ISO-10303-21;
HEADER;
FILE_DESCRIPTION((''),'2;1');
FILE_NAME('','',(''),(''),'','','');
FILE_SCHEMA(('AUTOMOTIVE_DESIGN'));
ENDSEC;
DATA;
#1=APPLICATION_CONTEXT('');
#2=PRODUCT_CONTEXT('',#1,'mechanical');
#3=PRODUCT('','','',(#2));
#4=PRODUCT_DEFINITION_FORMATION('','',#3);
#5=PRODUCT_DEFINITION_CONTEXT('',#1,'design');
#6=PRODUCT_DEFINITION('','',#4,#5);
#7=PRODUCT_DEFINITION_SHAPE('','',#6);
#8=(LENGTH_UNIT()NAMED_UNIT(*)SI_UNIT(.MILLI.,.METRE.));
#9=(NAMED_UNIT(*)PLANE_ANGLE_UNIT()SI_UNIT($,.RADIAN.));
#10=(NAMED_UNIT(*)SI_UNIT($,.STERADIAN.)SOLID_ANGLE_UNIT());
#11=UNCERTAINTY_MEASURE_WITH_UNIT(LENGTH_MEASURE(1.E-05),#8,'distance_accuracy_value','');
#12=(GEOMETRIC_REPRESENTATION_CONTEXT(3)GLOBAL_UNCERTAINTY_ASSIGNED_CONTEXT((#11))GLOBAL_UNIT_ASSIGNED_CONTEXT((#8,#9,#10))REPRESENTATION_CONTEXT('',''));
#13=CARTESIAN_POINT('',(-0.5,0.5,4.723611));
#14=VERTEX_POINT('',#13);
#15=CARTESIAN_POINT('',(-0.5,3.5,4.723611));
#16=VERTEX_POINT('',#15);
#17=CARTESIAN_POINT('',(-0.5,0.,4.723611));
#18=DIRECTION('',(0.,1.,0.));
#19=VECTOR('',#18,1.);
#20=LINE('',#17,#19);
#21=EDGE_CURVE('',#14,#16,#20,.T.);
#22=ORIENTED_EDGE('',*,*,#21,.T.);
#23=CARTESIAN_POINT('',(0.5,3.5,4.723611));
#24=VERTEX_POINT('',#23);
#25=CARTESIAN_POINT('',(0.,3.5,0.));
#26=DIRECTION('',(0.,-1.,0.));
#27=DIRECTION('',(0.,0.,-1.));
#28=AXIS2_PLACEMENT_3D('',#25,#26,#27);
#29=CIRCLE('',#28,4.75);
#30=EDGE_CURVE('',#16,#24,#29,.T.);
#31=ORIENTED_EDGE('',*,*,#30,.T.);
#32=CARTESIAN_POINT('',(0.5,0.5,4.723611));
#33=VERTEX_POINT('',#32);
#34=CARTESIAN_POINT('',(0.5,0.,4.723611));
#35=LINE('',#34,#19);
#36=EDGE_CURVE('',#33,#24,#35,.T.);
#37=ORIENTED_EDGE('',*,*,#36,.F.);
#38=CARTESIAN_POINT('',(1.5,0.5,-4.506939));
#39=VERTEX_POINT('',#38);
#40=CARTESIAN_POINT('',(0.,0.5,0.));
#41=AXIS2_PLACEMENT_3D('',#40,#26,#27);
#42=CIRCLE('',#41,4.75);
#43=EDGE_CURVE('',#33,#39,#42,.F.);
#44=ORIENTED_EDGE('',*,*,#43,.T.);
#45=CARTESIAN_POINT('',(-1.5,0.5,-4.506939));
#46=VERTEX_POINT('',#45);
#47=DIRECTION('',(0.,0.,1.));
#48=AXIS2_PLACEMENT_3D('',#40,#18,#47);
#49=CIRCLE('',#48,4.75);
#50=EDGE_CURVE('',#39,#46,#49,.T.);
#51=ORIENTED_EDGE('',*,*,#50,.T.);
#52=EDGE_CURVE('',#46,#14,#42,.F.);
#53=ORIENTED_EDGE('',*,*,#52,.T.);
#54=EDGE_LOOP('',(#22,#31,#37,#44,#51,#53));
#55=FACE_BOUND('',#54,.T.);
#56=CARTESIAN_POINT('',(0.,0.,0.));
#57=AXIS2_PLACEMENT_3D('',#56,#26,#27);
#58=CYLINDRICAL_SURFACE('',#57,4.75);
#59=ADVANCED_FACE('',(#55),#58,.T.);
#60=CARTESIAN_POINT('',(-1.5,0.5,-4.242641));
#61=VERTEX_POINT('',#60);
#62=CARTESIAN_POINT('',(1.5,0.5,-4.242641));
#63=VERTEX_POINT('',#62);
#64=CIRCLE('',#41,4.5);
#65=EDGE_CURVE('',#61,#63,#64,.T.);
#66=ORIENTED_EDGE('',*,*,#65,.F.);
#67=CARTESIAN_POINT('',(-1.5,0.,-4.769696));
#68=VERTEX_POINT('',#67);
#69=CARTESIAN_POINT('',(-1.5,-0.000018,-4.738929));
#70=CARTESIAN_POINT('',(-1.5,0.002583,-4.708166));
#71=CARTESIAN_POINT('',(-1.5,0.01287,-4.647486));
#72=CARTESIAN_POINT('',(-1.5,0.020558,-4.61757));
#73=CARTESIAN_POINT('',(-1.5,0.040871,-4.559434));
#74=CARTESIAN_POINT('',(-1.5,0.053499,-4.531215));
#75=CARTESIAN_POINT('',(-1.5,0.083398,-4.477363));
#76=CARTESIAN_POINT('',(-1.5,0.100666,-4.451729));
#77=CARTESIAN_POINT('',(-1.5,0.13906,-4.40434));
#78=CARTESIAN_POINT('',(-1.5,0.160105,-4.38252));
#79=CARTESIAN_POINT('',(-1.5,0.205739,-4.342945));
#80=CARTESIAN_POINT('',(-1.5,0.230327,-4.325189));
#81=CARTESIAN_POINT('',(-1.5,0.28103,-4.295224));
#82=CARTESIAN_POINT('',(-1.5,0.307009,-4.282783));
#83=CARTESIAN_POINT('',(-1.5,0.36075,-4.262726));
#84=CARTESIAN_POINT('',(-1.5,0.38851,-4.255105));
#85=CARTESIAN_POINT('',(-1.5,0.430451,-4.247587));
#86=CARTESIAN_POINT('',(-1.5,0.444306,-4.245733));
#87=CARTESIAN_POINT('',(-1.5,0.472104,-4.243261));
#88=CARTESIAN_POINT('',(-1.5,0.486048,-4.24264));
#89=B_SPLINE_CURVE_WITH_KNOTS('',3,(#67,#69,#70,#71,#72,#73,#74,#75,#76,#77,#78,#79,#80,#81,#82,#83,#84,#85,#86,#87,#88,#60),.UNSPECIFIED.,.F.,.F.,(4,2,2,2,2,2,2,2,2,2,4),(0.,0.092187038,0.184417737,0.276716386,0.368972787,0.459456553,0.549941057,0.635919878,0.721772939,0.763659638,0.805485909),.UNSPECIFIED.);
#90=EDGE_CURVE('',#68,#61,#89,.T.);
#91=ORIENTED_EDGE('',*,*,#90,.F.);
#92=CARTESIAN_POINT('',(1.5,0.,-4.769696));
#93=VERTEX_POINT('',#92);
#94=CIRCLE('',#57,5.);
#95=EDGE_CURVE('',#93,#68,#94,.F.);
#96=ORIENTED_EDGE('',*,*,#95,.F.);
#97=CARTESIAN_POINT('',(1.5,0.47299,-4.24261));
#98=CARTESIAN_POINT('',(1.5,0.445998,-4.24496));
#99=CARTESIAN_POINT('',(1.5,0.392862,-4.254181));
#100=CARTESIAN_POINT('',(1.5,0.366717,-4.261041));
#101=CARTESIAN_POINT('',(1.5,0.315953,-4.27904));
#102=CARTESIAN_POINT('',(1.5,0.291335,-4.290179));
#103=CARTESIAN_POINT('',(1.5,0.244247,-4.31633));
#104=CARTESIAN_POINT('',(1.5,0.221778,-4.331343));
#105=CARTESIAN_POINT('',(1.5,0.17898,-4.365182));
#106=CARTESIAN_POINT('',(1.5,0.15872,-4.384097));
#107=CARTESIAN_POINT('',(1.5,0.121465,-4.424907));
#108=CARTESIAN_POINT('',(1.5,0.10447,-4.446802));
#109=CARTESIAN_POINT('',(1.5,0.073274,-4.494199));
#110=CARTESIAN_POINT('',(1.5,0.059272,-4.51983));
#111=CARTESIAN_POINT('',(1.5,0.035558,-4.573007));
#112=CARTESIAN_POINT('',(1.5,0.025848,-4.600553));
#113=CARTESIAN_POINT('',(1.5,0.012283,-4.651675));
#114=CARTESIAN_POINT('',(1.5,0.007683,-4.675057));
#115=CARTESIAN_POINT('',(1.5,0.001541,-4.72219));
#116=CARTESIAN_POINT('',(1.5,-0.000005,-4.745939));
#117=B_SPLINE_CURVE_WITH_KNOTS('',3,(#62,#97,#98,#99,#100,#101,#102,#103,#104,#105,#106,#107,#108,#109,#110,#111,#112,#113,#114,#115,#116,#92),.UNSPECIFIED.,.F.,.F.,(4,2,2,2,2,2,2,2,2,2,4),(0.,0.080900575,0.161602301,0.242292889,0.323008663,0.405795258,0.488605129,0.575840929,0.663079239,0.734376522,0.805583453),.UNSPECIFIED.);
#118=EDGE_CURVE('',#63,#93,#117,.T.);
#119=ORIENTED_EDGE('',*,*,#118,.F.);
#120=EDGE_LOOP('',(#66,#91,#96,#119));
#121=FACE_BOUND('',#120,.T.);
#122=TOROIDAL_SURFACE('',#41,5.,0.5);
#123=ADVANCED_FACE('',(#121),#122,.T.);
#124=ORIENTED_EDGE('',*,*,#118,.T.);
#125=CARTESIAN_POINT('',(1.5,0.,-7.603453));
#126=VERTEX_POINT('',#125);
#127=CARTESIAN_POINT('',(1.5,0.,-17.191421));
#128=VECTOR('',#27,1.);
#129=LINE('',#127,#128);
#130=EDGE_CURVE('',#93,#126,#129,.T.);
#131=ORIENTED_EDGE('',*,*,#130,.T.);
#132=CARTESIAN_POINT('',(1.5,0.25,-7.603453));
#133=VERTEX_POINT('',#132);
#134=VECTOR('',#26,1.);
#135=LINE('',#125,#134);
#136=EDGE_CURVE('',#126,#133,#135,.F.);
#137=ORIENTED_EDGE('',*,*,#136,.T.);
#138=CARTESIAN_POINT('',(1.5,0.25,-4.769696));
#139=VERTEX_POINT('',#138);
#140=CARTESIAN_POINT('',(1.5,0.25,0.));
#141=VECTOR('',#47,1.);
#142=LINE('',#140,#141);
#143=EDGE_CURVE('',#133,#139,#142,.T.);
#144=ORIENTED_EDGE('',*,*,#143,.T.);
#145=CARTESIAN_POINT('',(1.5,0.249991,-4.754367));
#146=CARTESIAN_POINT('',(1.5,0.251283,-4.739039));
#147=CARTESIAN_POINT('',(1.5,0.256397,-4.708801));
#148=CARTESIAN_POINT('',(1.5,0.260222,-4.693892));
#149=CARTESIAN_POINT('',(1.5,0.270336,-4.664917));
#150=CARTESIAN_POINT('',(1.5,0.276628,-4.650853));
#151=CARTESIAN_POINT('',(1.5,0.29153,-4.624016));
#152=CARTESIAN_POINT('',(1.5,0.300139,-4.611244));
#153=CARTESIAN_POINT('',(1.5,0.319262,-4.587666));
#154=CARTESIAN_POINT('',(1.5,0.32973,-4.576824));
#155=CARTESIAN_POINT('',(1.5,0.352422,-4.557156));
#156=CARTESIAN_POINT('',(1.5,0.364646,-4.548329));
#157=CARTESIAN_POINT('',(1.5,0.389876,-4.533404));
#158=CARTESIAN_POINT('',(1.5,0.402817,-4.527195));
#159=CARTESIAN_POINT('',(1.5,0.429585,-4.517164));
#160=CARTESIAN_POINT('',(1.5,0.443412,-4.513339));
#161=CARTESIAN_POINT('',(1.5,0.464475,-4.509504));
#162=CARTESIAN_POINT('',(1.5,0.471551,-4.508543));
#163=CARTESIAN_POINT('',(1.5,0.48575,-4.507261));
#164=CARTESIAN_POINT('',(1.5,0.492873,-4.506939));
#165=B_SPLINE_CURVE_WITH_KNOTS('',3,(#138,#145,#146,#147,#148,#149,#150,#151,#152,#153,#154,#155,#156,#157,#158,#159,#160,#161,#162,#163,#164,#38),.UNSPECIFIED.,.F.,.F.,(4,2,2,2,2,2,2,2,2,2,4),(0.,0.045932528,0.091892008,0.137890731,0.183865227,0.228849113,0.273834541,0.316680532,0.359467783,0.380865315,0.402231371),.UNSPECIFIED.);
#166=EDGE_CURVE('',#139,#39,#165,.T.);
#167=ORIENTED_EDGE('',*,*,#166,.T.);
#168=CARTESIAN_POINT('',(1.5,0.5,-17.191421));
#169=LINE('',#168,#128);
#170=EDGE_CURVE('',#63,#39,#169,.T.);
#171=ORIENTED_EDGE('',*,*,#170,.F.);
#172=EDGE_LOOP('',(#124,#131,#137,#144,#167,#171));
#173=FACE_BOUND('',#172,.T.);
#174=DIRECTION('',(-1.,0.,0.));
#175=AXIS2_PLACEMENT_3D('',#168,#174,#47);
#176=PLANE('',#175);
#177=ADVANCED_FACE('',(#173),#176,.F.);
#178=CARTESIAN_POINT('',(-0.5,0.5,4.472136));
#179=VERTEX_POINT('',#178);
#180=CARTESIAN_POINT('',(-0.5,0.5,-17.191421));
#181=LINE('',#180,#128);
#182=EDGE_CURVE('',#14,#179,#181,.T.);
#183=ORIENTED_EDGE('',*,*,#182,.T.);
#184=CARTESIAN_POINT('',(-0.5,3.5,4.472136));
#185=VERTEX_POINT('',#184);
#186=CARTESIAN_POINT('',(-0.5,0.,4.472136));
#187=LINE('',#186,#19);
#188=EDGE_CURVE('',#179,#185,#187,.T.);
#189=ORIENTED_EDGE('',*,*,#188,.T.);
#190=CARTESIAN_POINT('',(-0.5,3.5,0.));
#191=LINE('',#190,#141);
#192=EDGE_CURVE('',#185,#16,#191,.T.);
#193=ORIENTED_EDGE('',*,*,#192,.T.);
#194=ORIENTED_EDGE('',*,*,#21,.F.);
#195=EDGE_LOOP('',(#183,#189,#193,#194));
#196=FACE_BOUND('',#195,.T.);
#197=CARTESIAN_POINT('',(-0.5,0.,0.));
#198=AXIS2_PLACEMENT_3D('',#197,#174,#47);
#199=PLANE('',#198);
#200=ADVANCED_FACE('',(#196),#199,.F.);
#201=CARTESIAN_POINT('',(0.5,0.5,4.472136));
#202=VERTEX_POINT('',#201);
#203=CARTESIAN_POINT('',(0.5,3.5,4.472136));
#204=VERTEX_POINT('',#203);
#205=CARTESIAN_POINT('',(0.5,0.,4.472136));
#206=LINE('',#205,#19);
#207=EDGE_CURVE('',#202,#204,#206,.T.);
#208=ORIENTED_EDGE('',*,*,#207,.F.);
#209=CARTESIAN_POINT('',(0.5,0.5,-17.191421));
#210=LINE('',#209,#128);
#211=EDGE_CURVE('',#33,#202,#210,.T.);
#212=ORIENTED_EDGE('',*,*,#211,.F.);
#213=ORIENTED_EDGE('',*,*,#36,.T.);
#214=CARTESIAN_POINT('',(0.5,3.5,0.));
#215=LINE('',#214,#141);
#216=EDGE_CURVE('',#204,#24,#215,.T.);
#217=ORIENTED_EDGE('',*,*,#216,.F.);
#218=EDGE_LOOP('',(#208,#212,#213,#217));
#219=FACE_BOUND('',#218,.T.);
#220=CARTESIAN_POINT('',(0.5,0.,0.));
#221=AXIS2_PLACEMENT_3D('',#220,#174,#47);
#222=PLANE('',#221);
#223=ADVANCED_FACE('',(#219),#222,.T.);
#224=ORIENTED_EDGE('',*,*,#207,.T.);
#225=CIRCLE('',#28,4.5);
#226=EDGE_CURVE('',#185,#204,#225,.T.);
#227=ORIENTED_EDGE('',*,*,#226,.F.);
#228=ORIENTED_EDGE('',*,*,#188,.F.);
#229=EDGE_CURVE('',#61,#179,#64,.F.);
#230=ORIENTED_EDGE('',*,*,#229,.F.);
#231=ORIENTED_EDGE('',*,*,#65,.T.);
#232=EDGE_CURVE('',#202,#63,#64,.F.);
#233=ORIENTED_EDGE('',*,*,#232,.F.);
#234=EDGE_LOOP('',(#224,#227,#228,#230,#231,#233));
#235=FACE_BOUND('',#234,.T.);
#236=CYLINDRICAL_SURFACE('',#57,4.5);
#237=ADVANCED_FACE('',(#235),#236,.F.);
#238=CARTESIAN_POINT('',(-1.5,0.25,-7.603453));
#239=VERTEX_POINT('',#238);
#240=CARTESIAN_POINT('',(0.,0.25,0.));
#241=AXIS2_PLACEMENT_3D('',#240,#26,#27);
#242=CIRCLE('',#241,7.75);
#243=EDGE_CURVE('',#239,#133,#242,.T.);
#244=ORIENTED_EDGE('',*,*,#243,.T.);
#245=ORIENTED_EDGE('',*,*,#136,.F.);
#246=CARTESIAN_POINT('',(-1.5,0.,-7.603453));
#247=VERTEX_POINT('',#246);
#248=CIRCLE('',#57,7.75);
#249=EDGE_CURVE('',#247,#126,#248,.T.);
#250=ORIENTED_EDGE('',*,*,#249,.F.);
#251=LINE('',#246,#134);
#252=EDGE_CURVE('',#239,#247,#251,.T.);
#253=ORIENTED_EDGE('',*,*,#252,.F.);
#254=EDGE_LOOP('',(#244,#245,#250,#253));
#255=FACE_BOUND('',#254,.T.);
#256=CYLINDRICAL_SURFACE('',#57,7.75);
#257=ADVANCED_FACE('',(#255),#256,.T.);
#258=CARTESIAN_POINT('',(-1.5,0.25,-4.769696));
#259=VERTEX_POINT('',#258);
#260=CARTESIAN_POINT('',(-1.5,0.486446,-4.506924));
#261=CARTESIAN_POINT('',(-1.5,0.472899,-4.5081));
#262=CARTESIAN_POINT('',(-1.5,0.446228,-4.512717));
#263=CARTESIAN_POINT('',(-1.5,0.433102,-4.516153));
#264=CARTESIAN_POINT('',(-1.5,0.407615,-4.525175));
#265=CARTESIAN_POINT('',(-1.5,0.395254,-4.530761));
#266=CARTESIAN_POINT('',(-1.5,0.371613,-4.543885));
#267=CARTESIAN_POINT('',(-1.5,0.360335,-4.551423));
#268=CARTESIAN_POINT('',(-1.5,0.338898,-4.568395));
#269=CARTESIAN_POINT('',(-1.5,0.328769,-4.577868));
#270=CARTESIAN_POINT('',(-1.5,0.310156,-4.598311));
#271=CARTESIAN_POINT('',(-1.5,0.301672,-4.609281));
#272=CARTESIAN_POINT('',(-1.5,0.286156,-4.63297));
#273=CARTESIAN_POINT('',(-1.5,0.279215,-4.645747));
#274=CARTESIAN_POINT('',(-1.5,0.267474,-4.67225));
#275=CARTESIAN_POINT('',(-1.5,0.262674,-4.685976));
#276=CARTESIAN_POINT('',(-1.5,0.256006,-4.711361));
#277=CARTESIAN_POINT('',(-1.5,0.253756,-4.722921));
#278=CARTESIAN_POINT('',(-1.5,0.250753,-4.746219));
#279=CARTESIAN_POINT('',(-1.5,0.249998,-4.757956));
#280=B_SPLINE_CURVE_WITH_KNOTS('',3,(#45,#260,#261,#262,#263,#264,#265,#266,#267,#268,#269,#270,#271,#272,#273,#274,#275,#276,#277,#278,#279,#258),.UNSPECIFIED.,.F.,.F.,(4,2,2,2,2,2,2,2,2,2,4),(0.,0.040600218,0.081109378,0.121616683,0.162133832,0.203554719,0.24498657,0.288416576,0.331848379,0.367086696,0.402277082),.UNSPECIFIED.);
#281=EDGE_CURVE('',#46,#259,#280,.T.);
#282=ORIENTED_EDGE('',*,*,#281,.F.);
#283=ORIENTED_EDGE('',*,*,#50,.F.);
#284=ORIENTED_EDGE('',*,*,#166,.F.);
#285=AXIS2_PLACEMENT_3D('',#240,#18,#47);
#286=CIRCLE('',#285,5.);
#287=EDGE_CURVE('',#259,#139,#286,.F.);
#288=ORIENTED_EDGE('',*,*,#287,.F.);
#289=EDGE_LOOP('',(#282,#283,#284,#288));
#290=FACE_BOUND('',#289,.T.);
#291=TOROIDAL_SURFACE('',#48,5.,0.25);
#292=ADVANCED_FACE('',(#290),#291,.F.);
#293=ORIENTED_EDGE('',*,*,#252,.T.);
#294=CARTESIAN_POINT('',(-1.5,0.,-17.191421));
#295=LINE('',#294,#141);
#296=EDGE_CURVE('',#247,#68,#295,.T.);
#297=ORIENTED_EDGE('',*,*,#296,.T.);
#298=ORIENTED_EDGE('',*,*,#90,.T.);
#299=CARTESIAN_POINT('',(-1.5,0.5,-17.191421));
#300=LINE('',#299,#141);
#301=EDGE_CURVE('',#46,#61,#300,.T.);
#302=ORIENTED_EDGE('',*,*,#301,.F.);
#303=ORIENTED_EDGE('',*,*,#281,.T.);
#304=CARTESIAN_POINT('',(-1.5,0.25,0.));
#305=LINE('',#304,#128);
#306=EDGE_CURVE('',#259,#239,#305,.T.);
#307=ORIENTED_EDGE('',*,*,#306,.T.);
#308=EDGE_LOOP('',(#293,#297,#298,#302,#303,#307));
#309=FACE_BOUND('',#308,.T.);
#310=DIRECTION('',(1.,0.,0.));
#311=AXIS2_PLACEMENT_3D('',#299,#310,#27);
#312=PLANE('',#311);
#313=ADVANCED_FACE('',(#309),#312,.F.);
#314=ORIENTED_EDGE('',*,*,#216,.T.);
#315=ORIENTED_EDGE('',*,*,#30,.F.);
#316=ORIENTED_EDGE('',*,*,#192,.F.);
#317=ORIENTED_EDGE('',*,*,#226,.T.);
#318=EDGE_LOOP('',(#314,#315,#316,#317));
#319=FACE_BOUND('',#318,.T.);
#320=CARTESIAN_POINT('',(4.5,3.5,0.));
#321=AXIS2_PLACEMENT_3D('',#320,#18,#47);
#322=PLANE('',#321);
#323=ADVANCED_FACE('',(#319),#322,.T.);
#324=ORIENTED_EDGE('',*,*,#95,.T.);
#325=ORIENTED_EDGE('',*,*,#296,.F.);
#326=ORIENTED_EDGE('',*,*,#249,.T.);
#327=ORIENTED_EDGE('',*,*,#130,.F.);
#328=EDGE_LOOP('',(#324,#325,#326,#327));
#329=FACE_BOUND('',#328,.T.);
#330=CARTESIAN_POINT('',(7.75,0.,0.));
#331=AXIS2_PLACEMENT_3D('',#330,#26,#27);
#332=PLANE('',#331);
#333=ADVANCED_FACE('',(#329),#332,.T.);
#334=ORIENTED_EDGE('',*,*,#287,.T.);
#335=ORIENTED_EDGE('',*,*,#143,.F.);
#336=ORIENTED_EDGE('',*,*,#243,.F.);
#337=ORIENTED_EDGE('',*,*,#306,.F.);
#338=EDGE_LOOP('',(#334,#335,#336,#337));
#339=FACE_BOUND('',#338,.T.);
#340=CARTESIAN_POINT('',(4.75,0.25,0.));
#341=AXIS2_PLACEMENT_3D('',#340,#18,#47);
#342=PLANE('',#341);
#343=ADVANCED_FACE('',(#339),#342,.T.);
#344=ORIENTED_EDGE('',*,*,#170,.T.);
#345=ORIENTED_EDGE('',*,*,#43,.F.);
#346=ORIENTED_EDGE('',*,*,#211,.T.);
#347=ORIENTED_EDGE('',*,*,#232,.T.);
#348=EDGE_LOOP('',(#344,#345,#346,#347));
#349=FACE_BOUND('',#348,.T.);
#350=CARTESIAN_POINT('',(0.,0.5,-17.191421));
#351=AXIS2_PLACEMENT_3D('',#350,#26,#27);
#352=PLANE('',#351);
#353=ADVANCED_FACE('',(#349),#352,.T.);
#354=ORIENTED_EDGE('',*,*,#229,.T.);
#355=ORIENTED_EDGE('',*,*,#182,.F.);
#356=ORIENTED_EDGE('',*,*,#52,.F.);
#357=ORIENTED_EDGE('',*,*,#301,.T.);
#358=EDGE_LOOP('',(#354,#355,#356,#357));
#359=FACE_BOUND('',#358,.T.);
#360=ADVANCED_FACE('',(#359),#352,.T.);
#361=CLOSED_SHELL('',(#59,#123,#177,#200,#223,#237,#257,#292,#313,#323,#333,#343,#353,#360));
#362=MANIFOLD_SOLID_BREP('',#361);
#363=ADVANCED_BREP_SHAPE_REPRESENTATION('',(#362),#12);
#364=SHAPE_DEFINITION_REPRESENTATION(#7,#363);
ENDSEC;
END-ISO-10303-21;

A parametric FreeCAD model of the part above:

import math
import FreeCAD as App
import Part
import Sketcher
from FreeCAD import Vector
Q = App.Units.Quantity


def edges_at(feature, points):
    """Names of the edges that pass closest to the given points."""
    edges = feature.Shape.Edges
    near = lambda p: min(range(len(edges)), key=lambda i: edges[i].distToShape(Part.Vertex(*p))[0])
    return sorted({f"Edge{near(p) + 1}" for p in points})

doc = App.newDocument("Part")
body = doc.addObject("PartDesign::Body", "Body")

# Sketch on XY plane
sketch1 = body.newObject("Sketcher::SketchObject", "Sketch")
sketch1.AttachmentSupport = (doc.getObject("XY_Plane"), [""])
sketch1.MapMode = "FlatFace"
sketch1.addGeometry(Part.LineSegment(Vector(4.5, 3.5, 0), Vector(4.5, 0, 0)), False)
sketch1.addGeometry(Part.LineSegment(Vector(4.5, 0, 0), Vector(7.75, 0, 0)), False)
sketch1.addGeometry(Part.LineSegment(Vector(7.75, 0, 0), Vector(7.75, 0.25, 0)), False)
sketch1.addGeometry(Part.LineSegment(Vector(7.75, 0.25, 0), Vector(4.75, 0.25, 0)), False)
sketch1.addGeometry(Part.LineSegment(Vector(4.75, 0.25, 0), Vector(4.75, 3.5, 0)), False)
sketch1.addGeometry(Part.LineSegment(Vector(4.75, 3.5, 0), Vector(4.5, 3.5, 0)), False)
sketch1.addConstraint(Sketcher.Constraint("Coincident", 0, 2, 1, 1))
sketch1.addConstraint(Sketcher.Constraint("Coincident", 1, 2, 2, 1))
sketch1.addConstraint(Sketcher.Constraint("Coincident", 2, 2, 3, 1))
sketch1.addConstraint(Sketcher.Constraint("Coincident", 3, 2, 4, 1))
sketch1.addConstraint(Sketcher.Constraint("Coincident", 4, 2, 5, 1))
sketch1.addConstraint(Sketcher.Constraint("Coincident", 5, 2, 0, 1))
sketch1.addConstraint(Sketcher.Constraint("Vertical", 0))
sketch1.addConstraint(Sketcher.Constraint("Horizontal", 1))
sketch1.addConstraint(Sketcher.Constraint("Vertical", 2))
sketch1.addConstraint(Sketcher.Constraint("Horizontal", 3))
sketch1.addConstraint(Sketcher.Constraint("Vertical", 4))
sketch1.addConstraint(Sketcher.Constraint("Horizontal", 5))
sketch1.addConstraint(Sketcher.Constraint("PointOnObject", 0, 2, -1))
sketch1.addConstraint(Sketcher.Constraint("Equal", 5, 2))
sketch1.addConstraint(Sketcher.Constraint("Equal", 1, 4))
sketch1.addConstraint(Sketcher.Constraint("DistanceX", 3, 2, 3, 1, Q("3 mm")))
sketch1.addConstraint(Sketcher.Constraint("DistanceY", 0, 2, 0, 1, Q("3.5 mm")))
sketch1.addConstraint(Sketcher.Constraint("DistanceX", -1, 1, 0, 2, Q("4.5 mm")))
revolution = body.newObject("PartDesign::Revolution", "Revolution")
revolution.Profile = sketch1
revolution.ReferenceAxis = (sketch1, ["V_Axis"])
revolution.Angle = 360

# Sketch on XZ plane
sketch2 = body.newObject("Sketcher::SketchObject", "Sketch001")
sketch2.AttachmentSupport = (doc.getObject("XZ_Plane"), [""])
sketch2.MapMode = "FlatFace"
sketch2.addGeometry(Part.LineSegment(Vector(-1.5, -7.6, 0), Vector(-1.5, -2.4, 0)), False)
sketch2.addGeometry(Part.LineSegment(Vector(-1.5, -2.4, 0), Vector(1.5, -2.4, 0)), False)
sketch2.addGeometry(Part.LineSegment(Vector(1.5, -2.4, 0), Vector(1.5, -7.6, 0)), False)
sketch2.addGeometry(Part.ArcOfCircle(Part.Circle(Vector(0, 0, 0), Vector(0, 0, 1), 7.8), math.radians(-79), math.radians(259)), False)
sketch2.addConstraint(Sketcher.Constraint("Coincident", 0, 2, 1, 1))
sketch2.addConstraint(Sketcher.Constraint("Coincident", 1, 2, 2, 1))
sketch2.addConstraint(Sketcher.Constraint("Coincident", 2, 2, 3, 1))
sketch2.addConstraint(Sketcher.Constraint("Coincident", 3, 2, 0, 1))
sketch2.addConstraint(Sketcher.Constraint("Vertical", 0))
sketch2.addConstraint(Sketcher.Constraint("Horizontal", 1))
sketch2.addConstraint(Sketcher.Constraint("Vertical", 2))
sketch2.addConstraint(Sketcher.Constraint("Coincident", 3, 3, -1, 1))
sketch2.addConstraint(Sketcher.Constraint("Horizontal", 2, 2, 3, 2))
sketch2.addConstraint(Sketcher.Constraint("DistanceX", 1, 1, 1, 2, Q("3 mm")))
sketch2.addConstraint(Sketcher.Constraint("Radius", 3, Q("7.75 mm")))
sketch2.addConstraint(Sketcher.Constraint("DistanceY", 0, 2, -1, 1, Q("2.4 mm")))
pocket1 = body.newObject("PartDesign::Pocket", "Pocket")
pocket1.Profile = sketch2
pocket1.Length = 0.5

# Sketch on XZ plane
sketch3 = body.newObject("Sketcher::SketchObject", "Sketch002")
sketch3.AttachmentSupport = (doc.getObject("XZ_Plane"), [""])
sketch3.MapMode = "FlatFace"
sketch3.AttachmentOffset = App.Placement(Vector(0, 0, -3.5), App.Rotation())
sketch3.addGeometry(Part.ArcOfCircle(Part.Circle(Vector(0, 0, 0), Vector(0, 0, 1), 4.5), math.radians(83.62), math.radians(96.38)), False)
sketch3.addGeometry(Part.LineSegment(Vector(-0.5, 4.47, 0), Vector(-0.5, 4.72, 0)), False)
sketch3.addGeometry(Part.ArcOfCircle(Part.Circle(Vector(0, 0, 0), Vector(0, 0, 1), 4.75), math.radians(83.96), math.radians(96.04)), False)
sketch3.addGeometry(Part.LineSegment(Vector(0.5, 4.72, 0), Vector(0.5, 4.47, 0)), False)
sketch3.addConstraint(Sketcher.Constraint("Coincident", 0, 2, 1, 1))
sketch3.addConstraint(Sketcher.Constraint("Coincident", 1, 2, 2, 2))
sketch3.addConstraint(Sketcher.Constraint("Coincident", 2, 1, 3, 1))
sketch3.addConstraint(Sketcher.Constraint("Coincident", 3, 2, 0, 1))
sketch3.addConstraint(Sketcher.Constraint("Vertical", 1))
sketch3.addConstraint(Sketcher.Constraint("Vertical", 3))
sketch3.addConstraint(Sketcher.Constraint("Coincident", 0, 3, -1, 1))
sketch3.addConstraint(Sketcher.Constraint("Coincident", 2, 3, -1, 1))
sketch3.addConstraint(Sketcher.Constraint("Horizontal", 1, 2, 2, 1))
sketch3.addConstraint(Sketcher.Constraint("Radius", 0, Q("4.5 mm")))
sketch3.addConstraint(Sketcher.Constraint("Radius", 2, Q("4.75 mm")))
sketch3.addConstraint(Sketcher.Constraint("DistanceX", 1, 2, 2, 1, Q("1 mm")))
pocket2 = body.newObject("PartDesign::Pocket", "Pocket001")
pocket2.Profile = sketch3
pocket2.Type = "ThroughAll"
pocket2.Reversed = True
doc.recompute()

fillet = body.newObject("PartDesign::Fillet", "Fillet")
fillet.Base = (pocket2, edges_at(pocket2, [(0, 0.25, -4.75)]))
fillet.Radius = 0.25
doc.recompute()

fillet2 = body.newObject("PartDesign::Fillet", "Fillet001")
fillet2.Base = (fillet, edges_at(fillet, [(0, 0, -4.5)]))
fillet2.Radius = 0.5

doc.recompute()
